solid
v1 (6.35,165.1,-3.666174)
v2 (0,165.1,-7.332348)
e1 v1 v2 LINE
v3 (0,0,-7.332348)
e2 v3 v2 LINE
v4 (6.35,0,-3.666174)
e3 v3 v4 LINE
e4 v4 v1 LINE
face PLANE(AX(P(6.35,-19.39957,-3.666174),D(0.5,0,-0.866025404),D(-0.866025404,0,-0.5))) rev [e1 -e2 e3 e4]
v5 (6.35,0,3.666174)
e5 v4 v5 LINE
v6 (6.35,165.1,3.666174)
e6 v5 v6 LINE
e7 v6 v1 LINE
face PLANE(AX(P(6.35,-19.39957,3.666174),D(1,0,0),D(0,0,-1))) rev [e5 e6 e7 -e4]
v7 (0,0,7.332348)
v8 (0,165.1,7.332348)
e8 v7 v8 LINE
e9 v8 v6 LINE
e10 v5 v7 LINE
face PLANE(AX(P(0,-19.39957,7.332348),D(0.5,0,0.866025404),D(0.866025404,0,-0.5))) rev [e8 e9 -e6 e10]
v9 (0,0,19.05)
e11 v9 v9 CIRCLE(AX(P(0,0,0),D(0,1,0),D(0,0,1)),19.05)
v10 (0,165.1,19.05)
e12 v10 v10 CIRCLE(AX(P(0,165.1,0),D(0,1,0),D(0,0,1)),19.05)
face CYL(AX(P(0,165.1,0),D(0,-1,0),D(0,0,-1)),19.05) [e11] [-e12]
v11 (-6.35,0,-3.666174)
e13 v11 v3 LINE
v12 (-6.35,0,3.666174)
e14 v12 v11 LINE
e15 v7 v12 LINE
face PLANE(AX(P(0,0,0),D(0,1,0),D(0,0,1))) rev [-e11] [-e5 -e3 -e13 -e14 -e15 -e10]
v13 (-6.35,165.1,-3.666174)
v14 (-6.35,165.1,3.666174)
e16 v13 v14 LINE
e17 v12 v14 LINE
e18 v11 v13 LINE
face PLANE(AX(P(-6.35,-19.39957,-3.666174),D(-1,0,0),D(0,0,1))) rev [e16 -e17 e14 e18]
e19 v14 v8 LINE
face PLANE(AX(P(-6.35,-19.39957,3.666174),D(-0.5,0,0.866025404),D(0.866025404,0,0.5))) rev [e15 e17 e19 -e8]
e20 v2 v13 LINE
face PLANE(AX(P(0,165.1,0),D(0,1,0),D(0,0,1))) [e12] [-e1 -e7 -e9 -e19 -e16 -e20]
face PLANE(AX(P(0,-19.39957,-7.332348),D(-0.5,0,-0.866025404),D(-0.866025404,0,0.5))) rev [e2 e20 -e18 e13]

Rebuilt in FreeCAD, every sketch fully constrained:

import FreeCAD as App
import Part
import Sketcher
from FreeCAD import Vector
Q = App.Units.Quantity

doc = App.newDocument("Part")
body = doc.addObject("PartDesign::Body", "Body")

sketch1 = body.newObject("Sketcher::SketchObject", "Sketch")
sketch1.AttachmentSupport = (doc.getObject("XZ_Plane"), [""])
sketch1.MapMode = "FlatFace"
sketch1.addGeometry(Part.Circle(Vector(0, 0, 0), Vector(0, 0, 1), 19), False)
sketch1.addConstraint(Sketcher.Constraint("Coincident", 0, 3, -1, 1))
sketch1.addConstraint(Sketcher.Constraint("Diameter", 0, Q("1.5 in")))
pad1 = body.newObject("PartDesign::Pad", "Pad")
pad1.Profile = sketch1
pad1.Length = Q("6.5 in")
pad1.Reversed = True

sketch2 = body.newObject("Sketcher::SketchObject", "Sketch001")
sketch2.AttachmentSupport = (doc.getObject("XZ_Plane"), [""])
sketch2.MapMode = "FlatFace"
sketch2.AttachmentOffset = App.Placement(Vector(0, 0, -6.5 * 25.4), App.Rotation())
sketch2.addGeometry(Part.LineSegment(Vector(0, -7, 0), Vector(-6, -4, 0)), False)
sketch2.addGeometry(Part.LineSegment(Vector(-6, -4, 0), Vector(-6, 4, 0)), False)
sketch2.addGeometry(Part.LineSegment(Vector(-6, 4, 0), Vector(0, 7, 0)), False)
sketch2.addGeometry(Part.LineSegment(Vector(0, 7, 0), Vector(6, 4, 0)), False)
sketch2.addGeometry(Part.LineSegment(Vector(6, 4, 0), Vector(6, -4, 0)), False)
sketch2.addGeometry(Part.LineSegment(Vector(6, -4, 0), Vector(0, -7, 0)), False)
sketch2.addConstraint(Sketcher.Constraint("Coincident", 0, 2, 1, 1))
sketch2.addConstraint(Sketcher.Constraint("Coincident", 1, 2, 2, 1))
sketch2.addConstraint(Sketcher.Constraint("Coincident", 2, 2, 3, 1))
sketch2.addConstraint(Sketcher.Constraint("Coincident", 3, 2, 4, 1))
sketch2.addConstraint(Sketcher.Constraint("Coincident", 4, 2, 5, 1))
sketch2.addConstraint(Sketcher.Constraint("Coincident", 5, 2, 0, 1))
sketch2.addConstraint(Sketcher.Constraint("Vertical", 1))
sketch2.addConstraint(Sketcher.Constraint("Vertical", 4))
sketch2.addConstraint(Sketcher.Constraint("Symmetric", 0, 2, 3, 2, -1, 1))
sketch2.addConstraint(Sketcher.Constraint("Symmetric", 2, 2, 5, 2, -1, 1))
sketch2.addConstraint(Sketcher.Constraint("PointOnObject", 2, 2, -2))
sketch2.addConstraint(Sketcher.Constraint("Parallel", 2, 5))
sketch2.addConstraint(Sketcher.Constraint("Horizontal", 1, 2, 3, 2))
sketch2.addConstraint(Sketcher.Constraint("Angle", 0, Q("150 deg")))
sketch2.addConstraint(Sketcher.Constraint("DistanceX", 1, 2, 3, 2, Q("0.5 in")))
sketch2.addConstraint(Sketcher.Constraint("DistanceY", 1, 1, 1, 2, Q("7.332348 mm")))
pocket1 = body.newObject("PartDesign::Pocket", "Pocket")
pocket1.Profile = sketch2
pocket1.Length = Q("6.5 in")
pocket1.Reversed = True

doc.recompute()
